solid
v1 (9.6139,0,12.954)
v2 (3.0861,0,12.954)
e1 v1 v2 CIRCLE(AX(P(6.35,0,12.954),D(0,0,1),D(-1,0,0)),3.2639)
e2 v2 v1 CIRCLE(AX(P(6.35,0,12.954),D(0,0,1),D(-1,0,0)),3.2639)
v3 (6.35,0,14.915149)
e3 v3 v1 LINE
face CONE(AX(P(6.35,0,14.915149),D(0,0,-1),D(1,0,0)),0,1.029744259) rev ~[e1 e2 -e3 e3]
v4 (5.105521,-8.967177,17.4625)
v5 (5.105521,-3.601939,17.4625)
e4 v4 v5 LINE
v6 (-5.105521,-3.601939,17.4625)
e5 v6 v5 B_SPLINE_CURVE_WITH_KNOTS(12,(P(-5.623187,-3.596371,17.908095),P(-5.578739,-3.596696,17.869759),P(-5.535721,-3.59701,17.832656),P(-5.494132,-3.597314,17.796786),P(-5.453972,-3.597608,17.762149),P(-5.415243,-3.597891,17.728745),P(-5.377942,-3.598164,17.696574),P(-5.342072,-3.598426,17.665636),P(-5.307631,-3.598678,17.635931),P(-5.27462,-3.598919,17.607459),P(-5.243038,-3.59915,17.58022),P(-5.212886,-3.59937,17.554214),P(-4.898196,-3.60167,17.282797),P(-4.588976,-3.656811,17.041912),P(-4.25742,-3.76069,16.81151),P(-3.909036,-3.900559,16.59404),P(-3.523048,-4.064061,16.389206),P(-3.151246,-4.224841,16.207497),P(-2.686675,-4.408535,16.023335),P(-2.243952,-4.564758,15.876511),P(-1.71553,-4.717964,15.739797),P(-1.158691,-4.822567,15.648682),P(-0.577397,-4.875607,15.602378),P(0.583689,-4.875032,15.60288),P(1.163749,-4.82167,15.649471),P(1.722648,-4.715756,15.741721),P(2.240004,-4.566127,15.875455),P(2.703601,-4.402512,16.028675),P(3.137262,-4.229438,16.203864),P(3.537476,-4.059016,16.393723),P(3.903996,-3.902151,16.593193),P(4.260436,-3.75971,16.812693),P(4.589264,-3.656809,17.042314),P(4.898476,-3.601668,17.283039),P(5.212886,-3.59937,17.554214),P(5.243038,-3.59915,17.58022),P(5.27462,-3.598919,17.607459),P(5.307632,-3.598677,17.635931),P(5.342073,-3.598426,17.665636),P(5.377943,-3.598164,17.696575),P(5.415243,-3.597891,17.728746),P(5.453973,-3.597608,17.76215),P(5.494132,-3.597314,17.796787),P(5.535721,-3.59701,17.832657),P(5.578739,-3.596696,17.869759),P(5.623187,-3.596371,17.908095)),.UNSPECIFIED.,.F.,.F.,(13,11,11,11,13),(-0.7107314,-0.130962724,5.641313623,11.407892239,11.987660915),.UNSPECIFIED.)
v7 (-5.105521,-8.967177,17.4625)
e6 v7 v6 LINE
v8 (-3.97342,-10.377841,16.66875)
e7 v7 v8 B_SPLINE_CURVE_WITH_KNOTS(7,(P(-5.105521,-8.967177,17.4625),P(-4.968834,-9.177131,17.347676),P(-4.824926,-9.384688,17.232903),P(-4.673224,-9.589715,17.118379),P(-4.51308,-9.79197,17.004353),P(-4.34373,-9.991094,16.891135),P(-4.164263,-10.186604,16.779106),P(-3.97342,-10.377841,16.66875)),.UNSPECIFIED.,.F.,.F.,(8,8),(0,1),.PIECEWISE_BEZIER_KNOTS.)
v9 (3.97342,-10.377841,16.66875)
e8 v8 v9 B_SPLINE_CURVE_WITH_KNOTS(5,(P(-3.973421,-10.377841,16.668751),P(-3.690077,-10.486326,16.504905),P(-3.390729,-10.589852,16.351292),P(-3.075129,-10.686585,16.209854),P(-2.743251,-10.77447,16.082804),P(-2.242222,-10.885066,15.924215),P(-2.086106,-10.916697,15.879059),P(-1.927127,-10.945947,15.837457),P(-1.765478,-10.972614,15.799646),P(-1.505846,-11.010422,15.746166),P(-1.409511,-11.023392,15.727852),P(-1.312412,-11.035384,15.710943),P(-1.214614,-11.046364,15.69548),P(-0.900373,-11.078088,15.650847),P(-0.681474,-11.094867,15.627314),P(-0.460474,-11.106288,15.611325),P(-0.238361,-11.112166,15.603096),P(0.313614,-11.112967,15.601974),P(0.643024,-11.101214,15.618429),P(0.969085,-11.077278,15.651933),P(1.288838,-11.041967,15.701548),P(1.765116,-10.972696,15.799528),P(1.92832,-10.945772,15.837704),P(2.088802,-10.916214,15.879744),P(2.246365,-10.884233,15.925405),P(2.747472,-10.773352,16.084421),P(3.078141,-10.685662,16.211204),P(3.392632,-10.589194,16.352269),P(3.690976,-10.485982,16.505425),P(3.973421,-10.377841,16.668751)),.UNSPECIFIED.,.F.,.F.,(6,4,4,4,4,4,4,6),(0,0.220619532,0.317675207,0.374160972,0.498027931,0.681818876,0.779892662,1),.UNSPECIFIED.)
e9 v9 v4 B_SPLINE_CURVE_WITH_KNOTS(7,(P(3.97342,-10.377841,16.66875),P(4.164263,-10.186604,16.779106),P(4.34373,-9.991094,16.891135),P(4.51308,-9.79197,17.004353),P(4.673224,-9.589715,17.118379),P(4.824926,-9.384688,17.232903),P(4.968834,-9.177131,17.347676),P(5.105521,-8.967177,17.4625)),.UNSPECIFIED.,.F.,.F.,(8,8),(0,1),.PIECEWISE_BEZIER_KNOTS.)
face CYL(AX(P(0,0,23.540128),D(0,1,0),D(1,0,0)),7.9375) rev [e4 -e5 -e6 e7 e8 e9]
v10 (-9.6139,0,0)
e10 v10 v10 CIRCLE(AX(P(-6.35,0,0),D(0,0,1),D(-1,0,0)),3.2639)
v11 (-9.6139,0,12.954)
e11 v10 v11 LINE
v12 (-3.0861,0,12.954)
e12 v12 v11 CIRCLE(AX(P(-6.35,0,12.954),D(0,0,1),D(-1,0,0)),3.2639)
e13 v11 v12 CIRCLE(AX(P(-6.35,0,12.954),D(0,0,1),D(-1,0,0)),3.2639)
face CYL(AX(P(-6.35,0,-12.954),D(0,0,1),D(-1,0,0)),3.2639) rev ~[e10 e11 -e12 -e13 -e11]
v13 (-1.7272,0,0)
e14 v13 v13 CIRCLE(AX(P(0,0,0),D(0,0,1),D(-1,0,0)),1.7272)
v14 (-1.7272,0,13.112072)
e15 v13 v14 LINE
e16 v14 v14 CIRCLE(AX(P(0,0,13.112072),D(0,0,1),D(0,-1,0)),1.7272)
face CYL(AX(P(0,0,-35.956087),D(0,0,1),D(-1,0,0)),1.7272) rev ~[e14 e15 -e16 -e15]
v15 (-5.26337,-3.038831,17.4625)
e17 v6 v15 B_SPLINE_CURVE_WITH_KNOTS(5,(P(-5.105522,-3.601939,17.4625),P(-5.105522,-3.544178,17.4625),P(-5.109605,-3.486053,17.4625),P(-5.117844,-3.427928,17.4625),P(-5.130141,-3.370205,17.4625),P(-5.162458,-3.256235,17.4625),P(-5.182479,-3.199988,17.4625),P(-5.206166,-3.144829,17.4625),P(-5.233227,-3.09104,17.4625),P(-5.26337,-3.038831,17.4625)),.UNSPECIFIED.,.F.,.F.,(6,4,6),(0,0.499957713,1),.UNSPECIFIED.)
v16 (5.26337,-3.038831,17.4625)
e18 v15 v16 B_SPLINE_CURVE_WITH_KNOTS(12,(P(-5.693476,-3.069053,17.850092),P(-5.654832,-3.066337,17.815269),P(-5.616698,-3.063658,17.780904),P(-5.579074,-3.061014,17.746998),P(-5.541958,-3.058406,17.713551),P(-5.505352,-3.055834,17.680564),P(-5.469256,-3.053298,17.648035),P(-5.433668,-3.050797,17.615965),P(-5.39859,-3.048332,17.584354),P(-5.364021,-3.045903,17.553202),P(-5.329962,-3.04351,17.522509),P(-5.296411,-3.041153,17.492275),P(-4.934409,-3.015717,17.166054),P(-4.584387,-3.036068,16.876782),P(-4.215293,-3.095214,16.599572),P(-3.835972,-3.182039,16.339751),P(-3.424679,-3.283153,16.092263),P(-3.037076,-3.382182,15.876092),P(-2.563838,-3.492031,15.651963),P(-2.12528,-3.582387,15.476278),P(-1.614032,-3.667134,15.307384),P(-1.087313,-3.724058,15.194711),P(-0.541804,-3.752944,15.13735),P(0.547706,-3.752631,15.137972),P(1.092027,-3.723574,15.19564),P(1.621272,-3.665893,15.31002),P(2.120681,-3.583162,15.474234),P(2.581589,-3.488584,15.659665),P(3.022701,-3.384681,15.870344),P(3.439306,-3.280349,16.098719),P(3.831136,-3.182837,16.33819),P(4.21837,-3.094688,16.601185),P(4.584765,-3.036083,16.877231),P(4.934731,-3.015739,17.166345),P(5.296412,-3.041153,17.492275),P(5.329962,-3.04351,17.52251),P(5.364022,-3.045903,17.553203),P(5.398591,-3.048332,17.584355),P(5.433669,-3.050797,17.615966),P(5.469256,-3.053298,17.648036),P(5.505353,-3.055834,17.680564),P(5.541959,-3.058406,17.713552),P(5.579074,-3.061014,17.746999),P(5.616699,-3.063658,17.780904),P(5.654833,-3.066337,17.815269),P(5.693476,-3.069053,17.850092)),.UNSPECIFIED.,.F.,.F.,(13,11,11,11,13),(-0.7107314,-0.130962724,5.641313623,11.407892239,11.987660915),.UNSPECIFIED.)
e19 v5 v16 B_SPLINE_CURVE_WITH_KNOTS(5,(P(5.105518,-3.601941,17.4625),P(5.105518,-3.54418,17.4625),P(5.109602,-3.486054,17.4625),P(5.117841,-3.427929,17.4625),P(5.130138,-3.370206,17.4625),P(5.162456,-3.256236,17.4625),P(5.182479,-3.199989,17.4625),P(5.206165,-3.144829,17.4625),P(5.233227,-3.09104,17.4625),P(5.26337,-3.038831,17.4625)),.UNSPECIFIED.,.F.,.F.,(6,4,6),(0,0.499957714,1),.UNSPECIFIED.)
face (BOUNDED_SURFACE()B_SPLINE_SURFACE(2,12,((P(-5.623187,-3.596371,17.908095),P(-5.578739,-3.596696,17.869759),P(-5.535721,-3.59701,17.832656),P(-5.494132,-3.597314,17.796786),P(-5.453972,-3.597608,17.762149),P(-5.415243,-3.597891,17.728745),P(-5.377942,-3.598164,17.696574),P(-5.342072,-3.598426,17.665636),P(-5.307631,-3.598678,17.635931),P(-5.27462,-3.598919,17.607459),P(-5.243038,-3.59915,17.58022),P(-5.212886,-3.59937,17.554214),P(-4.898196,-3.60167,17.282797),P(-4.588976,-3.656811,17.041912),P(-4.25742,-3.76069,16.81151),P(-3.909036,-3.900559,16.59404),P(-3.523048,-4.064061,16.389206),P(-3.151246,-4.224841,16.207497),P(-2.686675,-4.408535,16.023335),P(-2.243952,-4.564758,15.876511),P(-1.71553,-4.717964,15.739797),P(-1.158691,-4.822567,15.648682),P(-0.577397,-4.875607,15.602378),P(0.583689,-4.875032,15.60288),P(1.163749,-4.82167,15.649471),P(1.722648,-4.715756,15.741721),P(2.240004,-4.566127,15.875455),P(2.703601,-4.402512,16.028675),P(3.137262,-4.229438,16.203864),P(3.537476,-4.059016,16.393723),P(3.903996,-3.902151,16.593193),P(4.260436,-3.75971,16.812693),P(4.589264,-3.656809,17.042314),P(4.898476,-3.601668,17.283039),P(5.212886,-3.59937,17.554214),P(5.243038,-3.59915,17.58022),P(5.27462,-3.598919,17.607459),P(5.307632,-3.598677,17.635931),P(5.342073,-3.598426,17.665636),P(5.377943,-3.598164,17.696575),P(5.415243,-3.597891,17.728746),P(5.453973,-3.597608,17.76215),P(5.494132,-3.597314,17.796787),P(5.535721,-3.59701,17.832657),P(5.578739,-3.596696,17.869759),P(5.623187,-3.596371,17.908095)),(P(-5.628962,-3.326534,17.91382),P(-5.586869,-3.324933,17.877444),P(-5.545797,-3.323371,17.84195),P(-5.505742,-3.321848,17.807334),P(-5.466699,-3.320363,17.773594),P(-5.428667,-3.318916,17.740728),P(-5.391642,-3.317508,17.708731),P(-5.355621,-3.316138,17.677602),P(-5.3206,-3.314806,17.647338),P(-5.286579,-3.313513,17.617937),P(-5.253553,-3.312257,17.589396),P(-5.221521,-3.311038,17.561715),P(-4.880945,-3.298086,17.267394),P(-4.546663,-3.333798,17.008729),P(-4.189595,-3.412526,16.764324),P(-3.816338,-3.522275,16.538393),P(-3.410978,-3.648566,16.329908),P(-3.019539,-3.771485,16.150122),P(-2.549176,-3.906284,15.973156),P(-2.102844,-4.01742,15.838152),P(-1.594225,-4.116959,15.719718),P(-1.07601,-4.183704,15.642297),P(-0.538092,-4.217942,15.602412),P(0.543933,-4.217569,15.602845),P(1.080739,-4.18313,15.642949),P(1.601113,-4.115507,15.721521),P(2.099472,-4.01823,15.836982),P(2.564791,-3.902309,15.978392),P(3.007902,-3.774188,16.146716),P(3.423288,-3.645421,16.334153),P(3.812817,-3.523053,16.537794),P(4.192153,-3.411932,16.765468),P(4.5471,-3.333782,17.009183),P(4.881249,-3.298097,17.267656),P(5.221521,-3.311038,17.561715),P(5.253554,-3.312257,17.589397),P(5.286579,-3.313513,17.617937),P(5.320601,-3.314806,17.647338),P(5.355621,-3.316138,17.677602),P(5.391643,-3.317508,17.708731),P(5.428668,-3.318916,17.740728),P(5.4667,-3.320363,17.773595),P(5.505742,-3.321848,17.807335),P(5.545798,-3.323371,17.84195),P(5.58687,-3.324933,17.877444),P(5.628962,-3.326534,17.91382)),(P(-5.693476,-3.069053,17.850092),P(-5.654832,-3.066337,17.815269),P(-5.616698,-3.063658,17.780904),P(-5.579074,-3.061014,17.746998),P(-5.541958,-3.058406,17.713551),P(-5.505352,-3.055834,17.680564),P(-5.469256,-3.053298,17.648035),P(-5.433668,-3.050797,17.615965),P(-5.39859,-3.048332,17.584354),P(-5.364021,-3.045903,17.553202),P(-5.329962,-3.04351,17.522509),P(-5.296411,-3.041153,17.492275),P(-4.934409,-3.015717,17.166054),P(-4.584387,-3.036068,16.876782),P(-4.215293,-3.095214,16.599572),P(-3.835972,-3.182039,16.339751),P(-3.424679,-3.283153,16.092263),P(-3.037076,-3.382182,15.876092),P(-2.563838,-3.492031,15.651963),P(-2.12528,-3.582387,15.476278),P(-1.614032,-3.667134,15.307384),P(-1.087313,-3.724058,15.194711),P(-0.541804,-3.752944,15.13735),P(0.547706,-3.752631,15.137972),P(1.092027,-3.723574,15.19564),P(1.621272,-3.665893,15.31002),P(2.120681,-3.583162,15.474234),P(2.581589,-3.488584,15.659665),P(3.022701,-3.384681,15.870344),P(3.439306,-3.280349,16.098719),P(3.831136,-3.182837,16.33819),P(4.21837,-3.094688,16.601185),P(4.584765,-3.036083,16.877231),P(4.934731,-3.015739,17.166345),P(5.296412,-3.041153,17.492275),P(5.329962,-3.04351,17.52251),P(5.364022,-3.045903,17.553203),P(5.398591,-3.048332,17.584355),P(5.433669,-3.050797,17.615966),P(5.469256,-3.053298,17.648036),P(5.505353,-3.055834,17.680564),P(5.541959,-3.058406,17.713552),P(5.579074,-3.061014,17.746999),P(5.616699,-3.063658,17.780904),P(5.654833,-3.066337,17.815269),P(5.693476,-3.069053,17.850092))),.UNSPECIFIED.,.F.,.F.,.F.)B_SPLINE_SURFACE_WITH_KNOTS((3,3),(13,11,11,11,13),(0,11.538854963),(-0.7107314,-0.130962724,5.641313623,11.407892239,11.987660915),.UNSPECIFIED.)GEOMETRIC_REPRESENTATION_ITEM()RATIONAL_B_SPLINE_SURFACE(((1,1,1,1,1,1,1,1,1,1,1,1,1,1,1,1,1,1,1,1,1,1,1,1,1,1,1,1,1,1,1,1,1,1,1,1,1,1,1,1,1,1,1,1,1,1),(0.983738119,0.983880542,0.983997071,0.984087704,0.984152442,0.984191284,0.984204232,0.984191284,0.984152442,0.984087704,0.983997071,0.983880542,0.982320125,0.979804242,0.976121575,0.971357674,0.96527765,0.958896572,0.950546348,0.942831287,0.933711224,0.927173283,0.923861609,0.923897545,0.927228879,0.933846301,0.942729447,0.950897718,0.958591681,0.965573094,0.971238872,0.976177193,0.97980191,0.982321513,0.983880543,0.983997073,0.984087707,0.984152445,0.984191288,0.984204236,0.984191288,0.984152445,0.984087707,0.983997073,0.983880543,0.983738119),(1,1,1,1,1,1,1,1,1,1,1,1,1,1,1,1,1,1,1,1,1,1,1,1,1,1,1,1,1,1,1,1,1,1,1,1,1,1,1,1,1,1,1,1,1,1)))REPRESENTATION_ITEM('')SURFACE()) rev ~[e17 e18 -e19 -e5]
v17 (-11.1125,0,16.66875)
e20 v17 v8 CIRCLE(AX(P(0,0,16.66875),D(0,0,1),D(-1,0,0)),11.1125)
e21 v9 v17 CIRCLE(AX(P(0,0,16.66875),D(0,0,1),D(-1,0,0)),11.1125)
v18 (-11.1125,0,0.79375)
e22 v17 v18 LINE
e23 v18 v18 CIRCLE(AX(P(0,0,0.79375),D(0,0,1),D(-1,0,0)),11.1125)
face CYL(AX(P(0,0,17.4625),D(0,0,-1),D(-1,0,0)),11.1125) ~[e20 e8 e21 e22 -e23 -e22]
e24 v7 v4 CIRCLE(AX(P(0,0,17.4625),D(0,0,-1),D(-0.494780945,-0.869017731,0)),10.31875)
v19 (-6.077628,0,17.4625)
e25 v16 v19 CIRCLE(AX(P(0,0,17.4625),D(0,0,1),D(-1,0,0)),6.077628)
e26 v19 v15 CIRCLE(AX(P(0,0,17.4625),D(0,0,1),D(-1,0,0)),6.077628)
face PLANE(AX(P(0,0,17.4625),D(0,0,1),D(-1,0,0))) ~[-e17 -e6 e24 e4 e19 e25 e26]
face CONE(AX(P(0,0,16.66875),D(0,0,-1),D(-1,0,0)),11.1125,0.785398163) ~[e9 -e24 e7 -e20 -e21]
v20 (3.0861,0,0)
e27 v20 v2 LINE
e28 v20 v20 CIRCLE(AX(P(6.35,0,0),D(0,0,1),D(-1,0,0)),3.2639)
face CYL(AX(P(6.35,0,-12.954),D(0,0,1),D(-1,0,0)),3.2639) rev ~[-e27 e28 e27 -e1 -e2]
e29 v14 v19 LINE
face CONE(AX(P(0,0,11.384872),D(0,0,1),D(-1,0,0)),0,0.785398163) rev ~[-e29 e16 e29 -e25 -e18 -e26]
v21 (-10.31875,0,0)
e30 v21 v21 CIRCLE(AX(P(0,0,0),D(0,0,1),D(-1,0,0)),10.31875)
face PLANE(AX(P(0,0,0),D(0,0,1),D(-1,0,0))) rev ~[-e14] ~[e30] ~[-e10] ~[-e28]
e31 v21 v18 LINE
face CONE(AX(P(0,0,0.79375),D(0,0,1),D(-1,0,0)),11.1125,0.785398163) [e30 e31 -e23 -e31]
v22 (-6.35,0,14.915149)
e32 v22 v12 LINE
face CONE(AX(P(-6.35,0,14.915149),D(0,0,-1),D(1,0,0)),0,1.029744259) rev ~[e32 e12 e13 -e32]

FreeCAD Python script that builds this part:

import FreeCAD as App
import Part
import Sketcher
from FreeCAD import Vector
Q = App.Units.Quantity


def edges_at(feature, points):
    """Names of the edges that pass closest to the given points."""
    edges = feature.Shape.Edges
    near = lambda p: min(range(len(edges)), key=lambda i: edges[i].distToShape(Part.Vertex(*p))[0])
    return sorted({f"Edge{near(p) + 1}" for p in points})

doc = App.newDocument("Part")
body = doc.addObject("PartDesign::Body", "Body")

sketch1 = doc.addObject("Sketcher::SketchObject", "Sketch")
body.addObject(sketch1)
sketch1.AttachmentSupport = (doc.XZ_Plane, [""])
sketch1.MapMode = "FlatFace"
sketch1.addGeometry([
    Part.LineSegment(Vector(-11.1125, 0, 0), Vector(0, 0, 0)),
    Part.LineSegment(Vector(0, 0, 0), Vector(0, 11.384872, 0)),
    Part.LineSegment(Vector(0, 11.384872, 0), Vector(-6.077628, 17.4625, 0)),
    Part.LineSegment(Vector(-6.077628, 17.4625, 0), Vector(-11.1125, 17.4625, 0)),
    Part.LineSegment(Vector(-11.1125, 17.4625, 0), Vector(-11.1125, 0, 0)),
], False)
sketch1.addConstraint([
    Sketcher.Constraint("Coincident", 0, 2, 1, 1),
    Sketcher.Constraint("Coincident", 1, 2, 2, 1),
    Sketcher.Constraint("Coincident", 2, 2, 3, 1),
    Sketcher.Constraint("Coincident", 3, 2, 4, 1),
    Sketcher.Constraint("Coincident", 4, 2, 0, 1),
    Sketcher.Constraint("Horizontal", 0),
    Sketcher.Constraint("Vertical", 1),
    Sketcher.Constraint("Horizontal", 3),
    Sketcher.Constraint("Vertical", 4),
    Sketcher.Constraint("Coincident", 0, 2, -1, 1),
    Sketcher.Constraint("Angle", 2, Q("135 deg")),
    Sketcher.Constraint("DistanceX", 0, 1, 0, 2, Q("0.4375 in")),
    Sketcher.Constraint("DistanceY", 4, 2, 4, 1, Q("0.6875 in")),
    Sketcher.Constraint("DistanceX", 3, 2, 3, 1, 5.034872),
])
revolution = doc.addObject("PartDesign::Revolution", "Revolution")
body.addObject(revolution)
revolution.Profile = sketch1
revolution.ReferenceAxis = (sketch1, ["V_Axis"])
revolution.Angle = 360
doc.recompute()

chamfer = doc.addObject("PartDesign::Chamfer", "Chamfer")
body.addObject(chamfer)
chamfer.Base = (revolution, edges_at(revolution, [(11.113, 0, 0), (11.113, 0, 17.462)]))
chamfer.Size = Q("0.03125 in")

sketch2 = doc.addObject("Sketcher::SketchObject", "Sketch001")
body.addObject(sketch2)
sketch2.AttachmentSupport = (doc.XZ_Plane, [""])
sketch2.MapMode = "FlatFace"
sketch2.addGeometry(Part.Circle(Vector(0, 23.540128, 0), Vector(0, 0, 1), 7.9375), False)
sketch2.addConstraint([
    Sketcher.Constraint("PointOnObject", 0, 3, -2),
    Sketcher.Constraint("Diameter", 0, Q("0.625 in")),
    Sketcher.Constraint("DistanceY", -1, 1, 0, 3, 23.540128),
])
pocket1 = doc.addObject("PartDesign::Pocket", "Pocket")
body.addObject(pocket1)
pocket1.Profile = sketch2
pocket1.Length = Q("1 in")
pocket1.Reversed = True
doc.recompute()

fillet = doc.addObject("PartDesign::Fillet", "Fillet")
body.addObject(fillet)
fillet.Base = (pocket1, edges_at(pocket1, [(0, -4.218, 15.603)]))
fillet.Radius = Q("0.0625 in")

sketch3 = doc.addObject("Sketcher::SketchObject", "Sketch002")
body.addObject(sketch3)
sketch3.AttachmentSupport = (doc.XY_Plane, [""])
sketch3.MapMode = "FlatFace"
sketch3.addGeometry(Part.Circle(Vector(0, 0, 0), Vector(0, 0, 1), 1.7272), False)
sketch3.addConstraint([
    Sketcher.Constraint("Coincident", 0, 3, -1, 1),
    Sketcher.Constraint("Diameter", 0, Q("0.136 in")),
])
doc.recompute()
hole = doc.addObject("PartDesign::Hole", "Hole")
body.addObject(hole)
hole.Profile = sketch3
hole.ThreadType = "None"
hole.Diameter = Q("0.136 in")
hole.DepthType = "ThroughAll"
hole.Reversed = True

sketch4 = doc.addObject("Sketcher::SketchObject", "Sketch003")
body.addObject(sketch4)
sketch4.AttachmentSupport = (doc.XY_Plane, [""])
sketch4.MapMode = "FlatFace"
sketch4.addGeometry([
    Part.Circle(Vector(6.35, 0, 0), Vector(0, 0, 1), 3.2639),
    Part.Circle(Vector(-6.35, 0, 0), Vector(0, 0, 1), 3.2639),
], False)
sketch4.addConstraint([
    Sketcher.Constraint("Equal", 0, 1),
    Sketcher.Constraint("Symmetric", 0, 3, 1, 3, -1, 1),
    Sketcher.Constraint("PointOnObject", 0, 3, -1),
    Sketcher.Constraint("Diameter", 0, Q("0.257 in")),
    Sketcher.Constraint("DistanceX", 1, 3, 0, 3, Q("0.5 in")),
])
doc.recompute()
hole2 = doc.addObject("PartDesign::Hole", "Hole001")
body.addObject(hole2)
hole2.Profile = sketch4
hole2.ThreadType = "None"
hole2.Diameter = Q("0.257 in")
hole2.DepthType = "Dimension"
hole2.Depth = Q("0.51 in")
hole2.DrillPoint = "Angled"
hole2.DrillPointAngle = 118
hole2.Reversed = True

doc.recompute()
